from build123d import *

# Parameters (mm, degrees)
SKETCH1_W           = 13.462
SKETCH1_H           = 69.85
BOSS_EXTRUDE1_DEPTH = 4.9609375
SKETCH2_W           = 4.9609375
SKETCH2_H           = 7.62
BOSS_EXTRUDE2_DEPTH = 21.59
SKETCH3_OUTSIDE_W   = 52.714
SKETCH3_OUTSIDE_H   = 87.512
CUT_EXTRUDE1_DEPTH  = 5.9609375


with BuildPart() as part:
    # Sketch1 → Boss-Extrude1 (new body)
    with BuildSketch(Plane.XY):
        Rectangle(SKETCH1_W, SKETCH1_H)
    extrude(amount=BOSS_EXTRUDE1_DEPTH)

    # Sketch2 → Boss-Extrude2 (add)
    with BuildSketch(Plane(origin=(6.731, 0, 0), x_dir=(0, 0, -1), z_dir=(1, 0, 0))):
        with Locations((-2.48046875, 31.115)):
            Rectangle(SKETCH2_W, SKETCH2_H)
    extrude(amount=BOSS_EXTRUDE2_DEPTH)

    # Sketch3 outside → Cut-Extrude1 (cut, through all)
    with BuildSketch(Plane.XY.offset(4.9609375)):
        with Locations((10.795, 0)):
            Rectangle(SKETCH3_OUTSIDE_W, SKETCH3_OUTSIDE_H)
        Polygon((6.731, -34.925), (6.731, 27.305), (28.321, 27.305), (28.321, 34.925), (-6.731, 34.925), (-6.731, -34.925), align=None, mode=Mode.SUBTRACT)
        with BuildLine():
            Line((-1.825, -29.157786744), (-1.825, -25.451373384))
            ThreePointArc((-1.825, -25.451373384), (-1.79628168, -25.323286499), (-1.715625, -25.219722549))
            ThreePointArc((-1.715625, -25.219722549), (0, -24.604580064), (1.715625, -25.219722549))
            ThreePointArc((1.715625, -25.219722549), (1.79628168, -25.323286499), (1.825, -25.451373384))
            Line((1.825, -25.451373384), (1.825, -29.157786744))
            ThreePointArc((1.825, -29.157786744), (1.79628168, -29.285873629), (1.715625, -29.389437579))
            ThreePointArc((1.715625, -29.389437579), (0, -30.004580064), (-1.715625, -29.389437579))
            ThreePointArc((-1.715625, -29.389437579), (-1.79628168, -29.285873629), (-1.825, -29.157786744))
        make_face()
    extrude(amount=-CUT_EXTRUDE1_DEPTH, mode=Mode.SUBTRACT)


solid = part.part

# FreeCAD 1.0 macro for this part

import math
import FreeCAD as App
import Part
import Sketcher

V = App.Vector
Q = App.Units.Quantity


def add_polygon(sketch, points):
    """Adds a closed chain of lines whose ends are joined by coincident constraints."""
    first, n = sketch.GeometryCount, len(points)
    for a, b in zip(points, points[1:] + points[:1]):
        sketch.addGeometry(Part.LineSegment(App.Vector(*a, 0), App.Vector(*b, 0)), False)
    for i in range(n):
        sketch.addConstraint(Sketcher.Constraint("Coincident", first + i, 2, first + (i + 1) % n, 1))

doc = App.newDocument("Part")
body = doc.addObject("PartDesign::Body", "Body")

# Sketch on XY plane
sketch1 = body.newObject("Sketcher::SketchObject", "Sketch")
sketch1.AttachmentSupport = (doc.getObject("XY_Plane"), [""])
sketch1.MapMode = "FlatFace"
add_polygon(sketch1, [(-7, 35), (-7, -35), (7, -35), (7, 35)])  # lines 0-3
sketch1.addConstraint([
    Sketcher.Constraint("Vertical", 0),
    Sketcher.Constraint("Horizontal", 1),
    Sketcher.Constraint("Vertical", 2),
    Sketcher.Constraint("Horizontal", 3),
    Sketcher.Constraint("Symmetric", 0, 2, 2, 2, -1, 1),
    Sketcher.Constraint("DistanceX", 1, 1, 1, 2, Q("0.53 in")),
    Sketcher.Constraint("DistanceY", 0, 2, 0, 1, Q("2.75 in")),
])
pad1 = body.newObject("PartDesign::Pad", "Pad")
pad1.Profile = sketch1
pad1.Length = 4.960938

# Sketch on YZ plane
sketch2 = body.newObject("Sketcher::SketchObject", "Sketch001")
sketch2.AttachmentSupport = (doc.getObject("YZ_Plane"), [""])
sketch2.MapMode = "FlatFace"
sketch2.AttachmentOffset = App.Placement(V(0, 0, 0.265 * 25.4), App.Rotation())
add_polygon(sketch2, [(34.9, 5), (27.3, 5), (27.3, 0), (34.9, 0)])  # lines 0-3
sketch2.addConstraint([
    Sketcher.Constraint("Horizontal", 0),
    Sketcher.Constraint("Vertical", 1),
    Sketcher.Constraint("Horizontal", 2),
    Sketcher.Constraint("Vertical", 3),
    Sketcher.Constraint("PointOnObject", 1, 2, -1),
    Sketcher.Constraint("DistanceX", 0, 2, 0, 1, Q("0.3 in")),
    Sketcher.Constraint("DistanceX", -1, 1, 0, 2, Q("1.075 in")),
    Sketcher.Constraint("DistanceY", 1, 2, 1, 1, Q("4.960938 mm")),
])
pad2 = body.newObject("PartDesign::Pad", "Pad001")
pad2.Profile = sketch2
pad2.Length = Q("0.85 in")

# Sketch on XY plane
sketch3 = body.newObject("Sketcher::SketchObject", "Sketch002")
sketch3.AttachmentSupport = (doc.getObject("XY_Plane"), [""])
sketch3.MapMode = "FlatFace"
sketch3.AttachmentOffset = App.Placement(V(0, 0, 4.960938), App.Rotation())
add_polygon(sketch3, [(-15.56, 43.76), (-15.56, -43.76), (37.15, -43.76), (37.15, 43.76)])  # lines 0-3
add_polygon(sketch3, [(6.73, 27.3), (6.73, -34.92), (-6.73, -34.92), (-6.73, 34.92), (28.32, 34.92), (28.32, 27.3)])  # lines 4-9
sketch3.addGeometry(Part.LineSegment(V(-1.82, -25.45, 0), V(-1.82, -29.16, 0)), False)  # 10
sketch3.addGeometry(Part.ArcOfCircle(Part.Circle(V(-1.52, -29.16, 0), V(0, 0, 1), 0.3), math.radians(180), math.radians(231)), False)  # 11
sketch3.addGeometry(Part.ArcOfCircle(Part.Circle(V(0, -27.3, 0), V(0, 0, 1), 2.7), math.radians(-129), math.radians(-51)), False)  # 12
sketch3.addGeometry(Part.ArcOfCircle(Part.Circle(V(1.52, -29.16, 0), V(0, 0, 1), 0.3), math.radians(-51), math.radians(0)), False)  # 13
sketch3.addGeometry(Part.LineSegment(V(1.82, -29.16, 0), V(1.82, -25.45, 0)), False)  # 14
sketch3.addGeometry(Part.ArcOfCircle(Part.Circle(V(1.52, -25.45, 0), V(0, 0, 1), 0.3), math.radians(0), math.radians(51)), False)  # 15
sketch3.addGeometry(Part.ArcOfCircle(Part.Circle(V(0, -27.3, 0), V(0, 0, 1), 2.7), math.radians(51), math.radians(129)), False)  # 16
sketch3.addGeometry(Part.ArcOfCircle(Part.Circle(V(-1.52, -25.45, 0), V(0, 0, 1), 0.3), math.radians(129), math.radians(180)), False)  # 17
sketch3.addConstraint([
    Sketcher.Constraint("Tangent", 10, 2, 11, 1),
    Sketcher.Constraint("Tangent", 11, 2, 12, 1),
    Sketcher.Constraint("Tangent", 12, 2, 13, 1),
    Sketcher.Constraint("Tangent", 13, 2, 14, 1),
    Sketcher.Constraint("Tangent", 14, 2, 15, 1),
    Sketcher.Constraint("Tangent", 15, 2, 16, 1),
    Sketcher.Constraint("Tangent", 16, 2, 17, 1),
    Sketcher.Constraint("Tangent", 17, 2, 10, 1),
    Sketcher.Constraint("Vertical", 0),
    Sketcher.Constraint("Horizontal", 1),
    Sketcher.Constraint("Vertical", 2),
    Sketcher.Constraint("Horizontal", 3),
    Sketcher.Constraint("Vertical", 4),
    Sketcher.Constraint("Horizontal", 5),
    Sketcher.Constraint("Vertical", 6),
    Sketcher.Constraint("Horizontal", 7),
    Sketcher.Constraint("Vertical", 8),
    Sketcher.Constraint("Horizontal", 9),
    Sketcher.Constraint("Vertical", 10),
    Sketcher.Constraint("Vertical", 14),
    Sketcher.Constraint("Coincident", 16, 3, 12, 3),
    Sketcher.Constraint("Equal", 11, 13),
    Sketcher.Constraint("Equal", 13, 15),
    Sketcher.Constraint("Equal", 12, 16),
    Sketcher.Constraint("Equal", 15, 17),
    Sketcher.Constraint("Symmetric", 4, 2, 6, 2, -1, 1),
    Sketcher.Constraint("Symmetric", 11, 3, 13, 3, -2),
    Sketcher.Constraint("DistanceY", 8, 2, 8, 1, Q("0.3 in")),
    Sketcher.Constraint("DistanceX", 5, 2, 5, 1, Q("0.53 in")),
    Sketcher.Constraint("DistanceX", 7, 1, 7, 2, Q("1.38 in")),
    Sketcher.Constraint("DistanceY", 4, 2, 4, 1, Q("2.45 in")),
    Sketcher.Constraint("Radius", 11, Q("0.3 mm")),
    Sketcher.Constraint("Radius", 12, Q("2.7 mm")),
    Sketcher.Constraint("DistanceX", 1, 1, 1, 2, Q("52.714 mm")),
    Sketcher.Constraint("DistanceY", 0, 2, 0, 1, Q("87.512 mm")),
    Sketcher.Constraint("DistanceX", 11, 3, -1, 1, Q("1.525 mm")),
    Sketcher.Constraint("DistanceX", 0, 2, -1, 1, Q("15.562 mm")),
    Sketcher.Constraint("DistanceY", 0, 2, -1, 1, Q("43.756 mm")),
    Sketcher.Constraint("DistanceY", 12, 3, -1, 1, Q("27.30458 mm")),
])
pocket1 = body.newObject("PartDesign::Pocket", "Pocket")
pocket1.Profile = sketch3
pocket1.Type = "ThroughAll"

doc.recompute()
